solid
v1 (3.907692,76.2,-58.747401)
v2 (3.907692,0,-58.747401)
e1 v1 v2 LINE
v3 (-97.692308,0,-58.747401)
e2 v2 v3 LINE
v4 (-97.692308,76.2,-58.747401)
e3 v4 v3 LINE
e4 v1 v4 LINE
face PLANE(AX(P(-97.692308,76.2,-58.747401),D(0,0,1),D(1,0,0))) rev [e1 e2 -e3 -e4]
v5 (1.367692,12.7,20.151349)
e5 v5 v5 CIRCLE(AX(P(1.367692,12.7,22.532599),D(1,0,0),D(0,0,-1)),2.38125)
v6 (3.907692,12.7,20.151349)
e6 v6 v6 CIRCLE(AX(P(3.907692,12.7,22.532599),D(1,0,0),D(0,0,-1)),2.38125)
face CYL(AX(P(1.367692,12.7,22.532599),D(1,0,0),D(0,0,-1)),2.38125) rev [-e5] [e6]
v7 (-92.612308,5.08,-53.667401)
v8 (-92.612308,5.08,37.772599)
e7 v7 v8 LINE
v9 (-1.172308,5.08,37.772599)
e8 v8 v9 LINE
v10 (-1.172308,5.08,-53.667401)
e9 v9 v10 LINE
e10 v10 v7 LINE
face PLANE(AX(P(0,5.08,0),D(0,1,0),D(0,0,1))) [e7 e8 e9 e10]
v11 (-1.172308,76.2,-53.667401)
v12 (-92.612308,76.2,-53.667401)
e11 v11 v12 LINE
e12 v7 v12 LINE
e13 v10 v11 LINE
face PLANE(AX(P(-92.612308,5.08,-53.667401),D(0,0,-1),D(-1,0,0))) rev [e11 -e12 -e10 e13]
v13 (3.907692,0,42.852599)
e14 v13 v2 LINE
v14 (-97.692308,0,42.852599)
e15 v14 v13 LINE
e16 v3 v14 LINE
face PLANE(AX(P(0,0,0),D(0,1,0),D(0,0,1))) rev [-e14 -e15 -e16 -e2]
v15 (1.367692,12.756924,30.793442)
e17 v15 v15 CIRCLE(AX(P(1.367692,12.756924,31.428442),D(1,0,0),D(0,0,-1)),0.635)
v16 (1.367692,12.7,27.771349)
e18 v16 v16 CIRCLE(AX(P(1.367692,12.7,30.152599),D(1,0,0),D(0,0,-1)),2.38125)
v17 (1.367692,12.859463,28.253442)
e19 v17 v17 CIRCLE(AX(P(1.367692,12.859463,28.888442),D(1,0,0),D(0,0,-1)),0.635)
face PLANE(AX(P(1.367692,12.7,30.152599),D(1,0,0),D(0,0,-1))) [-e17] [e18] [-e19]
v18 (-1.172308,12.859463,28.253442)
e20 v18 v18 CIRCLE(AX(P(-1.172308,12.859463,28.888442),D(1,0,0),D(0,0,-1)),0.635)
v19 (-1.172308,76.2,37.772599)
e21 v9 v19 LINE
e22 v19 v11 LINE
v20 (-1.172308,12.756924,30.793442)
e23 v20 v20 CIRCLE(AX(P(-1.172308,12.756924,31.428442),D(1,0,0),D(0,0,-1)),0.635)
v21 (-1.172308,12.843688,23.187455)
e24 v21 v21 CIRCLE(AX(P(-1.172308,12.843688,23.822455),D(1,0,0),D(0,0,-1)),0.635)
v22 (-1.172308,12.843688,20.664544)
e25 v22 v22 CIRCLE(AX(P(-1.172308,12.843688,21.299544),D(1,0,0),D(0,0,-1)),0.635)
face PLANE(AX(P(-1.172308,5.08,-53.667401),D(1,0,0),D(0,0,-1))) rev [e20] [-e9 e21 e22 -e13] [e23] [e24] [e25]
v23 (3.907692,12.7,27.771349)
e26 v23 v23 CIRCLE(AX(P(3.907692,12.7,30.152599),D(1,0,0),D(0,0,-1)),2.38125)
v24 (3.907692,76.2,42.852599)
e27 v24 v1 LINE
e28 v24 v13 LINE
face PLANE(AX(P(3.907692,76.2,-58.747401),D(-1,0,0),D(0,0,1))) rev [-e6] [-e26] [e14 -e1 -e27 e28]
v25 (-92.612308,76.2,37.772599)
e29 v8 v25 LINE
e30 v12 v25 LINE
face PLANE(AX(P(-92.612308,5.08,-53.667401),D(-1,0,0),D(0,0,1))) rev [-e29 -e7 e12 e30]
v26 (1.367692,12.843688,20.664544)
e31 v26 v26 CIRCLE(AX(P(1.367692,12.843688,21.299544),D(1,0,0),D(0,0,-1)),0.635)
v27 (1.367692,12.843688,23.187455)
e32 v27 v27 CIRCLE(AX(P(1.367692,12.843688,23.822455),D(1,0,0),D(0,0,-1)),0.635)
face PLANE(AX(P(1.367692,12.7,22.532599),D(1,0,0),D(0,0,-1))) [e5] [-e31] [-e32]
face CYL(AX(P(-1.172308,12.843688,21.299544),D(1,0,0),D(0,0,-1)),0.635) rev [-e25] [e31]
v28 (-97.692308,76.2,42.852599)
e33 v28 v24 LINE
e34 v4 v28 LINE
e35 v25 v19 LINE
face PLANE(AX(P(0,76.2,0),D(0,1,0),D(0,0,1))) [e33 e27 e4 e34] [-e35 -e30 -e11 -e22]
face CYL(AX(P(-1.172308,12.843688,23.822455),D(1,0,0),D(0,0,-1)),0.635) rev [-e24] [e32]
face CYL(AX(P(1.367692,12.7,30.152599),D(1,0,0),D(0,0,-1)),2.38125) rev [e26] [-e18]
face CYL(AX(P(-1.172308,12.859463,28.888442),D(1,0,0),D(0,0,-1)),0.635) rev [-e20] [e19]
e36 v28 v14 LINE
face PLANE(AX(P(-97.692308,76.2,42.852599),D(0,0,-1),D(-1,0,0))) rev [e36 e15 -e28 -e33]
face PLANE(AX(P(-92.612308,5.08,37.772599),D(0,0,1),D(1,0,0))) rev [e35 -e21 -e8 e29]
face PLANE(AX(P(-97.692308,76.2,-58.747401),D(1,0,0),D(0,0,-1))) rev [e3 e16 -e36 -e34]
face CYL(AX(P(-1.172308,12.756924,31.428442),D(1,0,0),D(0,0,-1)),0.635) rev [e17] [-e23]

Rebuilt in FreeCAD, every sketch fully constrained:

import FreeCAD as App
import Part
import Sketcher

V = App.Vector
Q = App.Units.Quantity


def add_polygon(sketch, points):
    """Adds a closed chain of lines whose ends are joined by coincident constraints."""
    first, n = sketch.GeometryCount, len(points)
    for a, b in zip(points, points[1:] + points[:1]):
        sketch.addGeometry(Part.LineSegment(App.Vector(*a, 0), App.Vector(*b, 0)), False)
    for i in range(n):
        sketch.addConstraint(Sketcher.Constraint("Coincident", first + i, 2, first + (i + 1) % n, 1))

doc = App.newDocument("Part")
body = doc.addObject("PartDesign::Body", "Body")

sketch1 = body.newObject("Sketcher::SketchObject", "Sketch")
sketch1.AttachmentSupport = (doc.getObject("XZ_Plane"), [""])
sketch1.MapMode = "FlatFace"
add_polygon(sketch1, [(-98, -59), (-98, 43), (4, 43), (4, -59)])
sketch1.addConstraint(Sketcher.Constraint("Vertical", 0))
sketch1.addConstraint(Sketcher.Constraint("Horizontal", 1))
sketch1.addConstraint(Sketcher.Constraint("Vertical", 2))
sketch1.addConstraint(Sketcher.Constraint("Horizontal", 3))
sketch1.addConstraint(Sketcher.Constraint("Equal", 3, 0))
sketch1.addConstraint(Sketcher.Constraint("DistanceX", 1, 1, 1, 2, Q("4 in")))
sketch1.addConstraint(Sketcher.Constraint("DistanceY", -1, 1, 0, 2, Q("42.852599 mm")))
sketch1.addConstraint(Sketcher.Constraint("DistanceX", 0, 2, -1, 1, Q("97.692308 mm")))
pad1 = body.newObject("PartDesign::Pad", "Pad")
pad1.Profile = sketch1
pad1.Length = Q("3 in")
pad1.Reversed = True

sketch2 = body.newObject("Sketcher::SketchObject", "Sketch001")
sketch2.AttachmentSupport = (doc.getObject("XZ_Plane"), [""])
sketch2.MapMode = "FlatFace"
sketch2.AttachmentOffset = App.Placement(V(0, 0, -3 * 25.4), App.Rotation())
add_polygon(sketch2, [(-93, -54), (-93, 38), (-1, 38), (-1, -54)])
sketch2.addConstraint(Sketcher.Constraint("Vertical", 0))
sketch2.addConstraint(Sketcher.Constraint("Horizontal", 1))
sketch2.addConstraint(Sketcher.Constraint("Vertical", 2))
sketch2.addConstraint(Sketcher.Constraint("Horizontal", 3))
sketch2.addConstraint(Sketcher.Constraint("Equal", 3, 0))
sketch2.addConstraint(Sketcher.Constraint("DistanceX", 1, 1, 1, 2, Q("3.6 in")))
sketch2.addConstraint(Sketcher.Constraint("DistanceY", -1, 1, 0, 2, Q("37.772599 mm")))
sketch2.addConstraint(Sketcher.Constraint("DistanceX", 0, 2, -1, 1, Q("92.612308 mm")))
pocket1 = body.newObject("PartDesign::Pocket", "Pocket")
pocket1.Profile = sketch2
pocket1.Length = Q("2.8 in")
pocket1.Reversed = True

sketch3 = body.newObject("Sketcher::SketchObject", "Sketch002")
sketch3.AttachmentSupport = (doc.getObject("YZ_Plane"), [""])
sketch3.MapMode = "FlatFace"
sketch3.AttachmentOffset = App.Placement(V(0, 0, 3.907692), App.Rotation())
sketch3.addGeometry(Part.Circle(V(12.7, 30.2, 0), V(0, 0, 1), 2.4), False)
sketch3.addConstraint(Sketcher.Constraint("Diameter", 0, Q("0.1875 in")))
sketch3.addConstraint(Sketcher.Constraint("DistanceX", -1, 1, 0, 3, Q("0.5 in")))
sketch3.addConstraint(Sketcher.Constraint("DistanceY", -1, 1, 0, 3, Q("30.152599 mm")))
pocket2 = body.newObject("PartDesign::Pocket", "Pocket001")
pocket2.Profile = sketch3
pocket2.Length = Q("0.1 in")

sketch4 = body.newObject("Sketcher::SketchObject", "Sketch003")
sketch4.AttachmentSupport = (doc.getObject("YZ_Plane"), [""])
sketch4.MapMode = "FlatFace"
sketch4.AttachmentOffset = App.Placement(V(0, 0, 1.367692), App.Rotation())
sketch4.addGeometry(Part.Circle(V(12.8, 31.4, 0), V(0, 0, 1), 0.6), False)
sketch4.addGeometry(Part.Circle(V(12.9, 28.9, 0), V(0, 0, 1), 0.6), False)
sketch4.addConstraint(Sketcher.Constraint("Equal", 0, 1))
sketch4.addConstraint(Sketcher.Constraint("Diameter", 0, Q("0.05 in")))
sketch4.addConstraint(Sketcher.Constraint("DistanceY", 1, 3, 0, 3, Q("0.1 in")))
sketch4.addConstraint(Sketcher.Constraint("DistanceX", 0, 3, 1, 3, Q("0.102539 mm")))
sketch4.addConstraint(Sketcher.Constraint("DistanceX", -1, 1, 0, 3, Q("12.756924 mm")))
sketch4.addConstraint(Sketcher.Constraint("DistanceY", -1, 1, 0, 3, Q("31.428442 mm")))
pocket3 = body.newObject("PartDesign::Pocket", "Pocket002")
pocket3.Profile = sketch4
pocket3.Length = Q("0.1 in")

sketch5 = body.newObject("Sketcher::SketchObject", "Sketch004")
sketch5.AttachmentSupport = (doc.getObject("YZ_Plane"), [""])
sketch5.MapMode = "FlatFace"
sketch5.AttachmentOffset = App.Placement(V(0, 0, 3.907692), App.Rotation())
sketch5.addGeometry(Part.Circle(V(12.7, 22.5, 0), V(0, 0, 1), 2.4), False)
sketch5.addConstraint(Sketcher.Constraint("Diameter", 0, Q("0.1875 in")))
sketch5.addConstraint(Sketcher.Constraint("DistanceX", -1, 1, 0, 3, Q("0.5 in")))
sketch5.addConstraint(Sketcher.Constraint("DistanceY", -1, 1, 0, 3, Q("22.532599 mm")))
pocket4 = body.newObject("PartDesign::Pocket", "Pocket003")
pocket4.Profile = sketch5
pocket4.Length = Q("0.1 in")

sketch6 = body.newObject("Sketcher::SketchObject", "Sketch005")
sketch6.AttachmentSupport = (doc.getObject("YZ_Plane"), [""])
sketch6.MapMode = "FlatFace"
sketch6.AttachmentOffset = App.Placement(V(0, 0, 1.367692), App.Rotation())
sketch6.addGeometry(Part.Circle(V(12.8, 23.8, 0), V(0, 0, 1), 0.6), False)
sketch6.addGeometry(Part.Circle(V(12.8, 21.3, 0), V(0, 0, 1), 0.6), False)
sketch6.addConstraint(Sketcher.Constraint("Equal", 0, 1))
sketch6.addConstraint(Sketcher.Constraint("Vertical", 0, 3, 1, 3))
sketch6.addConstraint(Sketcher.Constraint("Diameter", 0, Q("0.05 in")))
sketch6.addConstraint(Sketcher.Constraint("DistanceX", -1, 1, 0, 3, Q("12.843688 mm")))
sketch6.addConstraint(Sketcher.Constraint("DistanceY", 1, 3, 0, 3, Q("2.522911 mm")))
sketch6.addConstraint(Sketcher.Constraint("DistanceY", -1, 1, 0, 3, Q("23.822455 mm")))
pocket5 = body.newObject("PartDesign::Pocket", "Pocket004")
pocket5.Profile = sketch6
pocket5.Length = Q("0.1 in")

doc.recompute()
